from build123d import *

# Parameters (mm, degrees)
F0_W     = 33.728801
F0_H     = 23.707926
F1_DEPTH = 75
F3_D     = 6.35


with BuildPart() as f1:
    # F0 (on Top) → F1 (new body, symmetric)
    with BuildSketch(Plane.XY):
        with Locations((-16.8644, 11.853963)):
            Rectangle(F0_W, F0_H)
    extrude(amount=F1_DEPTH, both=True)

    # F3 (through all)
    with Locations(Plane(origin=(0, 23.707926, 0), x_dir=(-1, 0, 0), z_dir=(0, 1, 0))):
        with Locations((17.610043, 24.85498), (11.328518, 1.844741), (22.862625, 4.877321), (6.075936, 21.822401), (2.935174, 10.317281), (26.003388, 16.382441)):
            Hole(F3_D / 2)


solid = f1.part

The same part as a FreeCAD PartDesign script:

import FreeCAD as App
import Part
import Sketcher


def add_polygon(sketch, points):
    """Adds a closed chain of lines whose ends are joined by coincident constraints."""
    first, n = sketch.GeometryCount, len(points)
    for a, b in zip(points, points[1:] + points[:1]):
        sketch.addGeometry(Part.LineSegment(App.Vector(*a, 0), App.Vector(*b, 0)), False)
    for i in range(n):
        sketch.addConstraint(Sketcher.Constraint("Coincident", first + i, 2, first + (i + 1) % n, 1))

doc = App.newDocument("Part")
body = doc.addObject("PartDesign::Body", "Body")

# Sketch on XY plane
sketch1 = body.newObject("Sketcher::SketchObject", "Sketch")
sketch1.AttachmentSupport = (doc.getObject("XY_Plane"), [""])
sketch1.MapMode = "FlatFace"
add_polygon(sketch1, [(-34, 24), (-34, 0), (0, 0), (0, 24)])  # lines 0-3
sketch1.addConstraint([
    Sketcher.Constraint("Vertical", 0),
    Sketcher.Constraint("Horizontal", 1),
    Sketcher.Constraint("Vertical", 2),
    Sketcher.Constraint("Horizontal", 3),
    Sketcher.Constraint("Coincident", 1, 2, -1, 1),
    Sketcher.Constraint("DistanceX", 1, 1, 1, 2, 33.728801),
    Sketcher.Constraint("DistanceY", 0, 2, 0, 1, 23.707926),
])
pad1 = body.newObject("PartDesign::Pad", "Pad")
pad1.Profile = sketch1
pad1.Length = 150
pad1.Midplane = True

# Sketch on XZ plane
sketch2 = body.newObject("Sketcher::SketchObject", "Sketch001")
sketch2.AttachmentSupport = (doc.getObject("XZ_Plane"), [""])
sketch2.MapMode = "FlatFace"
sketch2.AttachmentOffset = App.Placement(App.Vector(0, 0, -23.707926), App.Rotation())
sketch2.addGeometry([
    Part.Circle(App.Vector(-17.6, 24.9, 0), App.Vector(0, 0, 1), 3.2),  # 0
    Part.Circle(App.Vector(-11.3, 1.8, 0), App.Vector(0, 0, 1), 3.2),  # 1
    Part.Circle(App.Vector(-22.9, 4.9, 0), App.Vector(0, 0, 1), 3.2),  # 2
    Part.Circle(App.Vector(-6.1, 21.8, 0), App.Vector(0, 0, 1), 3.2),  # 3
    Part.Circle(App.Vector(-2.9, 10.3, 0), App.Vector(0, 0, 1), 3.2),  # 4
    Part.Circle(App.Vector(-26, 16.4, 0), App.Vector(0, 0, 1), 3.2),  # 5
], False)
sketch2.addConstraint([
    Sketcher.Constraint("Equal", 0, 1),
    Sketcher.Constraint("Equal", 1, 2),
    Sketcher.Constraint("Equal", 2, 3),
    Sketcher.Constraint("Equal", 3, 4),
    Sketcher.Constraint("Equal", 4, 5),
    Sketcher.Constraint("Diameter", 0, 6.35),
    Sketcher.Constraint("DistanceY", -1, 1, 3, 3, 21.822401),
    Sketcher.Constraint("DistanceY", 4, 3, 0, 3, 14.537699),
    Sketcher.Constraint("DistanceY", 1, 3, 5, 3, 14.5377),
    Sketcher.Constraint("DistanceY", -1, 1, 0, 3, 24.85498),
    Sketcher.Constraint("DistanceX", 1, 3, -1, 1, 11.328518),
    Sketcher.Constraint("DistanceY", -1, 1, 1, 3, 1.844741),
    Sketcher.Constraint("DistanceY", -1, 1, 2, 3, 4.877321),
    Sketcher.Constraint("DistanceX", 5, 3, -1, 1, 26.003388),
    Sketcher.Constraint("DistanceX", 2, 3, 3, 3, 16.786689),
    Sketcher.Constraint("DistanceX", 3, 3, 4, 3, 3.140762),
    Sketcher.Constraint("DistanceX", 0, 3, 4, 3, 14.674869),
    Sketcher.Constraint("DistanceX", 0, 3, -1, 1, 17.610043),
])
doc.recompute()
hole = body.newObject("PartDesign::Hole", "Hole")
hole.Profile = sketch2
hole.ThreadType = "None"
hole.Diameter = 6.35
hole.DepthType = "ThroughAll"
hole.Reversed = True

doc.recompute()
